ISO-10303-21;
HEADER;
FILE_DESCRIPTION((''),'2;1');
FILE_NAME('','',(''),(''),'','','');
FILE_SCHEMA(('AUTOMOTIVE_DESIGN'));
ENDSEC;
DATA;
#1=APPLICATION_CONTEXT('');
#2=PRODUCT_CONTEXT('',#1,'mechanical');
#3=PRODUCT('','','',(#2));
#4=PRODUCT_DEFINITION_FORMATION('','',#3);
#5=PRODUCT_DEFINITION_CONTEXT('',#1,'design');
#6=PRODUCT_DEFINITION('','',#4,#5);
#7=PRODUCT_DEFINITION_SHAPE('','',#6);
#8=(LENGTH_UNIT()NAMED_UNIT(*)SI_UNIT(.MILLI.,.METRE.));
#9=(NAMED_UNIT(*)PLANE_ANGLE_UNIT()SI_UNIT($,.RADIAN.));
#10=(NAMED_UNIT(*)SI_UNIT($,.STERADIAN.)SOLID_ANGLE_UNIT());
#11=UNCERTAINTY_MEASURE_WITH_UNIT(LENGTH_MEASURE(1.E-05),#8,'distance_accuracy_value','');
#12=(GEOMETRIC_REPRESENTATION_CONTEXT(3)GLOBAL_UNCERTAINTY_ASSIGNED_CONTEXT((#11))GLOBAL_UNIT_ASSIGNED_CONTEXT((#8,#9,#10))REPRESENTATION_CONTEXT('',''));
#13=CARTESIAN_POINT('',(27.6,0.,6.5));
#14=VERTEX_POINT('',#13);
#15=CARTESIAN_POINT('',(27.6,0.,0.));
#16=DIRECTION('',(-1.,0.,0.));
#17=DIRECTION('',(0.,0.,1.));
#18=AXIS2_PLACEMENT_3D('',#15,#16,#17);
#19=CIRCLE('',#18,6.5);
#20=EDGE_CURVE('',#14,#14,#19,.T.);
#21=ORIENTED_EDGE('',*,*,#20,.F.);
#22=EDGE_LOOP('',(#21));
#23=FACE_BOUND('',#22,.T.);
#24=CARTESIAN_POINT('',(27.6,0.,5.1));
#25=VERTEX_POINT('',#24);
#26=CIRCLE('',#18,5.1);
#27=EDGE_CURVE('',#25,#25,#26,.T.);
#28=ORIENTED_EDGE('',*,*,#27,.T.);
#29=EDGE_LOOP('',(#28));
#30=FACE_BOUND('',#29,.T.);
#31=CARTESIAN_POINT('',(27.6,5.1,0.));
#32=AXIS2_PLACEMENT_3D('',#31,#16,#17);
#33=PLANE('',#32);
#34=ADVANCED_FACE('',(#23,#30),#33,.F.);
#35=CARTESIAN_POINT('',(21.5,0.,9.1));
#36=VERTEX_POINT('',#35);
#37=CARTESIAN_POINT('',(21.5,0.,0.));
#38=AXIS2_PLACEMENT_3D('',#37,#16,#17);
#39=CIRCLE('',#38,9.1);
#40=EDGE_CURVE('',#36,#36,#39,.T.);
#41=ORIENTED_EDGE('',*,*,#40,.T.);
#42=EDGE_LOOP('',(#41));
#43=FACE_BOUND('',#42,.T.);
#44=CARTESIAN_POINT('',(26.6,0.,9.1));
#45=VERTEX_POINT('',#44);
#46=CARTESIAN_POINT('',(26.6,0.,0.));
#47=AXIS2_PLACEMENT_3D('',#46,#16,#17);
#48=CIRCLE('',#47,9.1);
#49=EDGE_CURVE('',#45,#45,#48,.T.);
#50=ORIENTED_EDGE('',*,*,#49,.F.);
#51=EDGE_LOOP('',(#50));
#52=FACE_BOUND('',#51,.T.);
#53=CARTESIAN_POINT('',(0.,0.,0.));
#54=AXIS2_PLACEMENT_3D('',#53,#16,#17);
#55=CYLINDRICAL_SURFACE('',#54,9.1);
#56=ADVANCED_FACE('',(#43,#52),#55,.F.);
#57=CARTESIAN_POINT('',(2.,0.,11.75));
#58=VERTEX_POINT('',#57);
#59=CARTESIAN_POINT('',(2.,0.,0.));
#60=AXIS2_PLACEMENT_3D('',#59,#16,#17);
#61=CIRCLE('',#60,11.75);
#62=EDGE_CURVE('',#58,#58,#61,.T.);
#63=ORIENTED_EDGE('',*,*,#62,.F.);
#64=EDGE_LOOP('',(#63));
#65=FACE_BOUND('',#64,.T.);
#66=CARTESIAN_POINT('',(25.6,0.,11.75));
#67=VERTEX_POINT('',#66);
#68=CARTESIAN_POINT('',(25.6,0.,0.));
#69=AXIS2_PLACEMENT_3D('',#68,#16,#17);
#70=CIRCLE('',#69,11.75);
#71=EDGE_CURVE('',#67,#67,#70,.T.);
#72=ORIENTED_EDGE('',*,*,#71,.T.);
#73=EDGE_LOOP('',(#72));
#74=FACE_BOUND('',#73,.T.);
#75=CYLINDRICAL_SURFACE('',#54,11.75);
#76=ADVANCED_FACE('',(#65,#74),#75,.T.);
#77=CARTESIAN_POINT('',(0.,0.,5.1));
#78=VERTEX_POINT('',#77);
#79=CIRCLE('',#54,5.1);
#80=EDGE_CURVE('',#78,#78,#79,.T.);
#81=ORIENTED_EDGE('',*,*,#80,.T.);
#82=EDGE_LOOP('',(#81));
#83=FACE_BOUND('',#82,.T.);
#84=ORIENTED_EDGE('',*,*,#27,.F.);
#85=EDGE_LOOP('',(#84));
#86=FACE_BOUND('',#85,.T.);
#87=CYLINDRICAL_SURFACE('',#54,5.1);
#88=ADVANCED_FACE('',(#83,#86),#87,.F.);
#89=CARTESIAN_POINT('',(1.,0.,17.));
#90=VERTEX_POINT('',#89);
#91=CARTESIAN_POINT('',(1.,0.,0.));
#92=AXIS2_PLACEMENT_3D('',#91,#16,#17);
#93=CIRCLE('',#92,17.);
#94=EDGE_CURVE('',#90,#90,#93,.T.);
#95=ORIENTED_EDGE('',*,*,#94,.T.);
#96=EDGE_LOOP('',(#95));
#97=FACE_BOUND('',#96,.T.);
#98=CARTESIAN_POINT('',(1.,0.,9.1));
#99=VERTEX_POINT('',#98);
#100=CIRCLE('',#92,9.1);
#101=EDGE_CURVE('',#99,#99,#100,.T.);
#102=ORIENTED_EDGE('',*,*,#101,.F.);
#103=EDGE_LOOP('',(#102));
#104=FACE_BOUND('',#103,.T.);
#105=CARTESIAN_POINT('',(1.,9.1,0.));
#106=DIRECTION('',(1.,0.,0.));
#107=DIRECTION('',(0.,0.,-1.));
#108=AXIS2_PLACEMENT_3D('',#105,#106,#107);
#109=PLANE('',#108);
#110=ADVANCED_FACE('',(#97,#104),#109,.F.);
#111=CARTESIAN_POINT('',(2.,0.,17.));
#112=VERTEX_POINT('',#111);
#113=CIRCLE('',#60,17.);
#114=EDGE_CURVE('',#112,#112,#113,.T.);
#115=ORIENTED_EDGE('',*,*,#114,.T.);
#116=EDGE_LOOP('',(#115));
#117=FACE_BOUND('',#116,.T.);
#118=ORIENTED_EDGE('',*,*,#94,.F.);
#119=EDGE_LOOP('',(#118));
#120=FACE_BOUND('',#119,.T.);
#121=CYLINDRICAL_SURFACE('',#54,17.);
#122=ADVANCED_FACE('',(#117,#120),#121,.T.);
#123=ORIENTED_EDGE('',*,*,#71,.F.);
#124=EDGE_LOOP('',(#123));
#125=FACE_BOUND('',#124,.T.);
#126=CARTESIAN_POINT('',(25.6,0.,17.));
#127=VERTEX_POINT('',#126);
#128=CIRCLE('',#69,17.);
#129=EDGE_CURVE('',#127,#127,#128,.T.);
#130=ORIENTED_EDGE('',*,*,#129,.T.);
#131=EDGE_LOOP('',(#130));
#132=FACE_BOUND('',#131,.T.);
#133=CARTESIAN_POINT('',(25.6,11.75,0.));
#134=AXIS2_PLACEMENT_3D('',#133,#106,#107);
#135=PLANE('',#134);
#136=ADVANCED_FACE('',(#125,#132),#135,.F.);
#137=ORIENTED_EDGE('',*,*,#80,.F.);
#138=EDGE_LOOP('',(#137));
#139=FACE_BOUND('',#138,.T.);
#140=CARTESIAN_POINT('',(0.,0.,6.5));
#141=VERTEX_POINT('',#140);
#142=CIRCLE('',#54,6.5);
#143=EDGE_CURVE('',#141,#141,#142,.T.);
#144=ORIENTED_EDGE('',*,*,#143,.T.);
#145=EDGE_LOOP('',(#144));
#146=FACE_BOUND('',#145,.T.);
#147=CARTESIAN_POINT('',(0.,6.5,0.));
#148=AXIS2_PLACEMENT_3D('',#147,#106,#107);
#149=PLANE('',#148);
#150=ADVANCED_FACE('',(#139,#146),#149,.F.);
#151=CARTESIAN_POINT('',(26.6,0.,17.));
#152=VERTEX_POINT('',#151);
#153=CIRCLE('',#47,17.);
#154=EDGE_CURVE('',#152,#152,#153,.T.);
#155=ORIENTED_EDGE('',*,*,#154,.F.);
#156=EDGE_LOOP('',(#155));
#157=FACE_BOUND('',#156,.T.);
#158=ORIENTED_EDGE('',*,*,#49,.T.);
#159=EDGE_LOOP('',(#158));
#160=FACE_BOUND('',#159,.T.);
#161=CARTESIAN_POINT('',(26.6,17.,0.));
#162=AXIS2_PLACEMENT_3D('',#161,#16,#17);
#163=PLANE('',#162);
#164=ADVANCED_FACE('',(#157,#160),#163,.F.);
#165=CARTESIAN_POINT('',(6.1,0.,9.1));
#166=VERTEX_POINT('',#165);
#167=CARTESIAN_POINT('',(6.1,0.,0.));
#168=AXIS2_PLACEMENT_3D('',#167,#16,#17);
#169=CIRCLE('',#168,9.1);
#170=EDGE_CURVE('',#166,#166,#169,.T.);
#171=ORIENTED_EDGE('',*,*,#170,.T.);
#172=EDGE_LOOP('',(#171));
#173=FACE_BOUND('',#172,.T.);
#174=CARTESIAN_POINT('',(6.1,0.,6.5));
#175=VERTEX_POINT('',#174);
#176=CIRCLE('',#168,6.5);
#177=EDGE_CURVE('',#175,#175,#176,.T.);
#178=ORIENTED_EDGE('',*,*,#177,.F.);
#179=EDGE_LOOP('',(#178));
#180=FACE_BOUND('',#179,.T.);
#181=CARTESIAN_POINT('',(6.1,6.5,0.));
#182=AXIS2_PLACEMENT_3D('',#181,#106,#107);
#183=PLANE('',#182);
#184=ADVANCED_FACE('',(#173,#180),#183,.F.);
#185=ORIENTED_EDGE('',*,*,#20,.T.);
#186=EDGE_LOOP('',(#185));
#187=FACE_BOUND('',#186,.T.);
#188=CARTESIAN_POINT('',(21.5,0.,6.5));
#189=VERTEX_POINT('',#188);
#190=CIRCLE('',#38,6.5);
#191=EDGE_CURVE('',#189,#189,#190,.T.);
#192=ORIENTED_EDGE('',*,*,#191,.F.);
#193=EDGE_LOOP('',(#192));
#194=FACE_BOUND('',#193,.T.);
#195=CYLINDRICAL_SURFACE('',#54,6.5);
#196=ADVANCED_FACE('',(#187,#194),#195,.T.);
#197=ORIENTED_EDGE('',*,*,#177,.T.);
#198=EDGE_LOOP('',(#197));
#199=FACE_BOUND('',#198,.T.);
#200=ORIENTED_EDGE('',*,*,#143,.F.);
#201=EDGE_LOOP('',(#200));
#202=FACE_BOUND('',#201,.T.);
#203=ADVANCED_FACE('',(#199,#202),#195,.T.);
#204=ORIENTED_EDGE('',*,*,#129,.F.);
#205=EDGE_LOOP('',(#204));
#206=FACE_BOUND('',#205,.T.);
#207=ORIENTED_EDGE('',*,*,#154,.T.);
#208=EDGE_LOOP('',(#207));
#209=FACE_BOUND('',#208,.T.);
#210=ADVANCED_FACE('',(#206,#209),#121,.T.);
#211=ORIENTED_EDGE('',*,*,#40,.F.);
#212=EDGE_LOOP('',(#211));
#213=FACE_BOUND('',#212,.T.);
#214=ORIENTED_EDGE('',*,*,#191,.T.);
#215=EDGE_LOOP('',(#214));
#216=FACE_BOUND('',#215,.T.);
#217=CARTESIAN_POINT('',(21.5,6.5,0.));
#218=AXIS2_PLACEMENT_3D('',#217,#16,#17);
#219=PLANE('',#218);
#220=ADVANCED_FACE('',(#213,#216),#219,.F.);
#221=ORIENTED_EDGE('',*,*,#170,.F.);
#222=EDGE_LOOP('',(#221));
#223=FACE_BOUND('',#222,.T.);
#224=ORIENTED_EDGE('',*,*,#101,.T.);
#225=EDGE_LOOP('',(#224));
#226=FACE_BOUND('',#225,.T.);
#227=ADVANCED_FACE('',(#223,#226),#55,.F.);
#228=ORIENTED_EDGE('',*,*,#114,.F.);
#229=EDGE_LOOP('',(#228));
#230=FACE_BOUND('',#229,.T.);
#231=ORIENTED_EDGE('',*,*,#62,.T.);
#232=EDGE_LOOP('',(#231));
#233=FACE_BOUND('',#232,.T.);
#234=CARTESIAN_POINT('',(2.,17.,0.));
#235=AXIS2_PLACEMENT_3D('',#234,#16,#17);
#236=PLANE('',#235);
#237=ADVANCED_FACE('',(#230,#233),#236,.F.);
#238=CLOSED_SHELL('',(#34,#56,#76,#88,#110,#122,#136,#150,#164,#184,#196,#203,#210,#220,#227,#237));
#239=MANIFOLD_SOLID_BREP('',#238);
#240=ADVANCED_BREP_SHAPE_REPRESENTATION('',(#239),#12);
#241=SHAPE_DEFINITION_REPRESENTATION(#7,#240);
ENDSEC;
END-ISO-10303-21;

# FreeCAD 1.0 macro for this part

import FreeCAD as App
import Part
import Sketcher
from FreeCAD import Vector

doc = App.newDocument("Part")
body = doc.addObject("PartDesign::Body", "Body")

# Sketch on XY plane
sketch1 = doc.addObject("Sketcher::SketchObject", "Sketch")
body.addObject(sketch1)
sketch1.AttachmentSupport = (doc.XY_Plane, [""])
sketch1.MapMode = "FlatFace"
sketch1.addGeometry(Part.LineSegment(Vector(0, 6.5, 0), Vector(0, 5.1, 0)), False)
sketch1.addGeometry(Part.LineSegment(Vector(0, 5.1, 0), Vector(27.6, 5.1, 0)), False)
sketch1.addGeometry(Part.LineSegment(Vector(27.6, 5.1, 0), Vector(27.6, 6.5, 0)), False)
sketch1.addGeometry(Part.LineSegment(Vector(27.6, 6.5, 0), Vector(21.5, 6.5, 0)), False)
sketch1.addGeometry(Part.LineSegment(Vector(21.5, 6.5, 0), Vector(21.5, 9.1, 0)), False)
sketch1.addGeometry(Part.LineSegment(Vector(21.5, 9.1, 0), Vector(26.6, 9.1, 0)), False)
sketch1.addGeometry(Part.LineSegment(Vector(26.6, 9.1, 0), Vector(26.6, 17, 0)), False)
sketch1.addGeometry(Part.LineSegment(Vector(26.6, 17, 0), Vector(25.6, 17, 0)), False)
sketch1.addGeometry(Part.LineSegment(Vector(25.6, 17, 0), Vector(25.6, 11.75, 0)), False)
sketch1.addGeometry(Part.LineSegment(Vector(25.6, 11.75, 0), Vector(2, 11.75, 0)), False)
sketch1.addGeometry(Part.LineSegment(Vector(2, 11.75, 0), Vector(2, 17, 0)), False)
sketch1.addGeometry(Part.LineSegment(Vector(2, 17, 0), Vector(1, 17, 0)), False)
sketch1.addGeometry(Part.LineSegment(Vector(1, 17, 0), Vector(1, 9.1, 0)), False)
sketch1.addGeometry(Part.LineSegment(Vector(1, 9.1, 0), Vector(6.1, 9.1, 0)), False)
sketch1.addGeometry(Part.LineSegment(Vector(6.1, 9.1, 0), Vector(6.1, 6.5, 0)), False)
sketch1.addGeometry(Part.LineSegment(Vector(6.1, 6.5, 0), Vector(0, 6.5, 0)), False)
sketch1.addConstraint(Sketcher.Constraint("Coincident", 0, 2, 1, 1))
sketch1.addConstraint(Sketcher.Constraint("Coincident", 1, 2, 2, 1))
sketch1.addConstraint(Sketcher.Constraint("Coincident", 2, 2, 3, 1))
sketch1.addConstraint(Sketcher.Constraint("Coincident", 3, 2, 4, 1))
sketch1.addConstraint(Sketcher.Constraint("Coincident", 4, 2, 5, 1))
sketch1.addConstraint(Sketcher.Constraint("Coincident", 5, 2, 6, 1))
sketch1.addConstraint(Sketcher.Constraint("Coincident", 6, 2, 7, 1))
sketch1.addConstraint(Sketcher.Constraint("Coincident", 7, 2, 8, 1))
sketch1.addConstraint(Sketcher.Constraint("Coincident", 8, 2, 9, 1))
sketch1.addConstraint(Sketcher.Constraint("Coincident", 9, 2, 10, 1))
sketch1.addConstraint(Sketcher.Constraint("Coincident", 10, 2, 11, 1))
sketch1.addConstraint(Sketcher.Constraint("Coincident", 11, 2, 12, 1))
sketch1.addConstraint(Sketcher.Constraint("Coincident", 12, 2, 13, 1))
sketch1.addConstraint(Sketcher.Constraint("Coincident", 13, 2, 14, 1))
sketch1.addConstraint(Sketcher.Constraint("Coincident", 14, 2, 15, 1))
sketch1.addConstraint(Sketcher.Constraint("Coincident", 15, 2, 0, 1))
sketch1.addConstraint(Sketcher.Constraint("Vertical", 0))
sketch1.addConstraint(Sketcher.Constraint("Horizontal", 1))
sketch1.addConstraint(Sketcher.Constraint("Vertical", 2))
sketch1.addConstraint(Sketcher.Constraint("Horizontal", 3))
sketch1.addConstraint(Sketcher.Constraint("Vertical", 4))
sketch1.addConstraint(Sketcher.Constraint("Horizontal", 5))
sketch1.addConstraint(Sketcher.Constraint("Vertical", 6))
sketch1.addConstraint(Sketcher.Constraint("Horizontal", 7))
sketch1.addConstraint(Sketcher.Constraint("Vertical", 8))
sketch1.addConstraint(Sketcher.Constraint("Horizontal", 9))
sketch1.addConstraint(Sketcher.Constraint("Vertical", 10))
sketch1.addConstraint(Sketcher.Constraint("Horizontal", 11))
sketch1.addConstraint(Sketcher.Constraint("Vertical", 12))
sketch1.addConstraint(Sketcher.Constraint("Horizontal", 13))
sketch1.addConstraint(Sketcher.Constraint("Vertical", 14))
sketch1.addConstraint(Sketcher.Constraint("Horizontal", 15))
sketch1.addConstraint(Sketcher.Constraint("PointOnObject", 0, 2, -2))
sketch1.addConstraint(Sketcher.Constraint("Horizontal", 7, 2, 10, 2))
sketch1.addConstraint(Sketcher.Constraint("Horizontal", 5, 2, 12, 2))
sketch1.addConstraint(Sketcher.Constraint("Horizontal", 3, 2, 14, 2))
sketch1.addConstraint(Sketcher.Constraint("Equal", 7, 11))
sketch1.addConstraint(Sketcher.Constraint("Equal", 5, 13))
sketch1.addConstraint(Sketcher.Constraint("Equal", 3, 15))
sketch1.addConstraint(Sketcher.Constraint("DistanceX", 7, 2, 7, 1, 1.0))
sketch1.addConstraint(Sketcher.Constraint("DistanceX", 1, 1, 1, 2, 27.6))
sketch1.addConstraint(Sketcher.Constraint("DistanceX", 3, 2, 3, 1, 6.1))
sketch1.addConstraint(Sketcher.Constraint("DistanceX", 5, 1, 5, 2, 5.1))
sketch1.addConstraint(Sketcher.Constraint("DistanceY", 0, 2, 0, 1, 1.4))
sketch1.addConstraint(Sketcher.Constraint("DistanceY", 4, 1, 4, 2, 2.6))
sketch1.addConstraint(Sketcher.Constraint("DistanceY", 6, 1, 6, 2, 7.9))
sketch1.addConstraint(Sketcher.Constraint("DistanceY", -1, 1, 6, 2, 17.0))
sketch1.addConstraint(Sketcher.Constraint("DistanceY", 8, 2, 8, 1, 5.25))
revolution = doc.addObject("PartDesign::Revolution", "Revolution")
body.addObject(revolution)
revolution.Profile = sketch1
revolution.ReferenceAxis = (sketch1, ["H_Axis"])
revolution.Angle = 360

doc.recompute()
